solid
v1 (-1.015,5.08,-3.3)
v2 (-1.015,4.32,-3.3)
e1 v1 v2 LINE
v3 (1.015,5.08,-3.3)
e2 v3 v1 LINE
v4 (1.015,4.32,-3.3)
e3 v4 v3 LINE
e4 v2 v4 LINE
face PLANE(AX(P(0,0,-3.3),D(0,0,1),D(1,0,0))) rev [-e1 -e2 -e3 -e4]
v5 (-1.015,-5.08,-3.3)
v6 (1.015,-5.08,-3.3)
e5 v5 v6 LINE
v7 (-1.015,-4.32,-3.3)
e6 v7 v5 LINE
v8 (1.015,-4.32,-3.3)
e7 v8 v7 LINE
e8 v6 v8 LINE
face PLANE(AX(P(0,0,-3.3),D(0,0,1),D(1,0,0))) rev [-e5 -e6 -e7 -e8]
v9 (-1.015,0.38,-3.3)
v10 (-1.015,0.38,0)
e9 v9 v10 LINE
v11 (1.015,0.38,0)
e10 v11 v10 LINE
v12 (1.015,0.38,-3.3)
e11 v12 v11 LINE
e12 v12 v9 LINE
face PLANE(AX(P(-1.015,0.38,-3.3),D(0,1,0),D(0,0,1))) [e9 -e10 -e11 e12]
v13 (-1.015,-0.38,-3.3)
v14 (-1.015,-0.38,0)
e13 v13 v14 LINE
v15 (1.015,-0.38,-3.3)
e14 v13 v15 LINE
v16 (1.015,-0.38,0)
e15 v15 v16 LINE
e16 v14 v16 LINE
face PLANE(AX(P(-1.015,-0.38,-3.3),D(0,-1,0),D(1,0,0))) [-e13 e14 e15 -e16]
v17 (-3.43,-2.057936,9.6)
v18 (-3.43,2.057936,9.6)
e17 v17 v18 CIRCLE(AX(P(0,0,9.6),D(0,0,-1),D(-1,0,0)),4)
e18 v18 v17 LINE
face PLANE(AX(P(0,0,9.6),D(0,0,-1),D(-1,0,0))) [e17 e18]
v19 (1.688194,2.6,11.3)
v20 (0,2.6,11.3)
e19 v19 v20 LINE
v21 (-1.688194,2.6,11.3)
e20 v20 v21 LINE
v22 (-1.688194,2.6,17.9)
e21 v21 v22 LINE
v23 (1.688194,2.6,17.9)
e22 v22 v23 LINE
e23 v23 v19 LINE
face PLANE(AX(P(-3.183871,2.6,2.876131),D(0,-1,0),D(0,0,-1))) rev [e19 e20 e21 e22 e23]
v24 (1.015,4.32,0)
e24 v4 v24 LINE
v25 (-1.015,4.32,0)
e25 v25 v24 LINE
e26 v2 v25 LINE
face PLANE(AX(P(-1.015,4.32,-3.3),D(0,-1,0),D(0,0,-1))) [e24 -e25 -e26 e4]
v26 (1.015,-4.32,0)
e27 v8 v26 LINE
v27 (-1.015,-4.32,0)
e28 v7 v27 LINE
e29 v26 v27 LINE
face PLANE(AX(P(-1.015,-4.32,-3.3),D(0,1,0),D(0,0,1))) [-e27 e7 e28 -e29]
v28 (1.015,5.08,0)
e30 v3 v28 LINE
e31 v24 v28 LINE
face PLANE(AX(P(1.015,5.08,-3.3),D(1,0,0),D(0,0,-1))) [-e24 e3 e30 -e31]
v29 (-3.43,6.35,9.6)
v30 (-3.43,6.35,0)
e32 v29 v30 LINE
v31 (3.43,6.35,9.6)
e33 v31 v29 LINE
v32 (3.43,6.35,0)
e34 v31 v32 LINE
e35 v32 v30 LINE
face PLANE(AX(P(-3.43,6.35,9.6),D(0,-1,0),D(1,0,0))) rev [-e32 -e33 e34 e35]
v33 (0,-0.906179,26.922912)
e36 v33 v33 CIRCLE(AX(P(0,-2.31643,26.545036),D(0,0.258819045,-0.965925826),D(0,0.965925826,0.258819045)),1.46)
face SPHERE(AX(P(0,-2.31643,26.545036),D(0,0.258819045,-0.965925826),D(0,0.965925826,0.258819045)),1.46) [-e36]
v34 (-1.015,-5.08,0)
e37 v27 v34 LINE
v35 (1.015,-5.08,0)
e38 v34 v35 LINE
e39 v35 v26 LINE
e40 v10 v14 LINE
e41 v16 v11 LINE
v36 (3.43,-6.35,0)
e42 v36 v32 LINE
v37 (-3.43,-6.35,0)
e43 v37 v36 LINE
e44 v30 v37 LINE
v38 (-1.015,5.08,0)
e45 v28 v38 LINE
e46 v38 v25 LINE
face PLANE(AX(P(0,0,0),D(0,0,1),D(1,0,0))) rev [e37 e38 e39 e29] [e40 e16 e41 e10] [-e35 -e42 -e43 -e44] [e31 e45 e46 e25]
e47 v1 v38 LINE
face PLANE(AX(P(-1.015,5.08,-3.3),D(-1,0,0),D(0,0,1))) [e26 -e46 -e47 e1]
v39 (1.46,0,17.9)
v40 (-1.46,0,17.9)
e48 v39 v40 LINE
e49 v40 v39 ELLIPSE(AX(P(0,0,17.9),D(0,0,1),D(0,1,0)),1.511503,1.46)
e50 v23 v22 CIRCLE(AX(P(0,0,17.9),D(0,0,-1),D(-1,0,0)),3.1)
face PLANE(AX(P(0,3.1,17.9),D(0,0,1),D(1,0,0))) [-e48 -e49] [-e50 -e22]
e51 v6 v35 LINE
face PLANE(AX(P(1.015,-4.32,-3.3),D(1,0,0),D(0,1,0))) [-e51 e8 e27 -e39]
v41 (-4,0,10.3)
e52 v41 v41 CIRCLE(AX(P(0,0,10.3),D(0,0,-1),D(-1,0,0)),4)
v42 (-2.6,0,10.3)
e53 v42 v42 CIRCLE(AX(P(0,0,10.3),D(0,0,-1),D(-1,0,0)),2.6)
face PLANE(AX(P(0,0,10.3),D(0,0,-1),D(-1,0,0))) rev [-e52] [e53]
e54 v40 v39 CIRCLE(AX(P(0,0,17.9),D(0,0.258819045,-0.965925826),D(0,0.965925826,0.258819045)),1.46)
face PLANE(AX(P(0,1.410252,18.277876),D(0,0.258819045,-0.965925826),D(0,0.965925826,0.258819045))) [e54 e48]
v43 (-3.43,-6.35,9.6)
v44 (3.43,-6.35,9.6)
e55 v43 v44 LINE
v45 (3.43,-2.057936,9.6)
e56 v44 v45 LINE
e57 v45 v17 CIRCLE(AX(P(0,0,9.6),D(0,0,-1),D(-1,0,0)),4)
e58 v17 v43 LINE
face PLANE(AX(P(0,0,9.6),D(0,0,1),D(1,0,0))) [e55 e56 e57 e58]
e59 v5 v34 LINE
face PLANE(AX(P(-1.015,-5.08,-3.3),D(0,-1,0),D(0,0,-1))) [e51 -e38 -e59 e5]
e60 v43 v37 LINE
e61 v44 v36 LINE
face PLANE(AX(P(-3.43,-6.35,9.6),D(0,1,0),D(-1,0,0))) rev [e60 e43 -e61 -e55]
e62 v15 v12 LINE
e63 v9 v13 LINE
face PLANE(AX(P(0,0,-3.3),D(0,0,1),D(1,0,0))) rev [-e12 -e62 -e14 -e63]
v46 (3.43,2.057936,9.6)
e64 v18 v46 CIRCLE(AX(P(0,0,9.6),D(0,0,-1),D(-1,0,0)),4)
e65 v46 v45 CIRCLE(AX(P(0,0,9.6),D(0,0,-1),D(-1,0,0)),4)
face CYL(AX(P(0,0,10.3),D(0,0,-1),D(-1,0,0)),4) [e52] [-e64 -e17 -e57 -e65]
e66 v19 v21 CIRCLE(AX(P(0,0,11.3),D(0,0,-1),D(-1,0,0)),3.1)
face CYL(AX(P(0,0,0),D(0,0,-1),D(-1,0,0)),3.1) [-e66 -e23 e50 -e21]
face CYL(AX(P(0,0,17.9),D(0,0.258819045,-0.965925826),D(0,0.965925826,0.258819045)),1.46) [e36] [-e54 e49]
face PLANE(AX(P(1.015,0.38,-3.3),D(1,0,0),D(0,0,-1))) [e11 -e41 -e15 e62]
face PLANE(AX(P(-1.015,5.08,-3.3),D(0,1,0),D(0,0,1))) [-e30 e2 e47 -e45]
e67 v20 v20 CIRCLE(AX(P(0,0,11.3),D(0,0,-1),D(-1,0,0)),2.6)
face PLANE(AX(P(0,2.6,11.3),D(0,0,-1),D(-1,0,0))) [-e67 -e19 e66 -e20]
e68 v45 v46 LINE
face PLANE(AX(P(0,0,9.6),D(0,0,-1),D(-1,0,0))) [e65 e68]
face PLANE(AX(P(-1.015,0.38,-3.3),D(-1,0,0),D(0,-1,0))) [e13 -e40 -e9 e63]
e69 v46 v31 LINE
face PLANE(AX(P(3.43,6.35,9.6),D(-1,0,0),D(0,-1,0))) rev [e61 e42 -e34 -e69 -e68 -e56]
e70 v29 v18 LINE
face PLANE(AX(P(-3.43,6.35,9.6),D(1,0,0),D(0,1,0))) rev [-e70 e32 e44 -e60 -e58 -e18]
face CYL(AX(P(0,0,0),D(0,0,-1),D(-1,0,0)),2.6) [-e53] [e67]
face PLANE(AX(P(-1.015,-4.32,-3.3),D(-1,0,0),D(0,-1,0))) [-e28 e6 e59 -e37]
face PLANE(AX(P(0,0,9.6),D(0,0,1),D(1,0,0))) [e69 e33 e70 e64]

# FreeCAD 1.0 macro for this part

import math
import FreeCAD as App
import Part
import Sketcher
from FreeCAD import Vector
Q = App.Units.Quantity

doc = App.newDocument("Part")
body = doc.addObject("PartDesign::Body", "Body")

sketch1 = body.newObject("Sketcher::SketchObject", "Sketch")
sketch1.AttachmentSupport = (doc.getObject("XY_Plane"), [""])
sketch1.MapMode = "FlatFace"
sketch1.addGeometry([
    Part.LineSegment(Vector(-3, 6, 0), Vector(-3, -6, 0)),
    Part.LineSegment(Vector(-3, -6, 0), Vector(3, -6, 0)),
    Part.LineSegment(Vector(3, -6, 0), Vector(3, 6, 0)),
    Part.LineSegment(Vector(3, 6, 0), Vector(-3, 6, 0)),
], False)
sketch1.addConstraint([
    Sketcher.Constraint("Coincident", 0, 2, 1, 1),
    Sketcher.Constraint("Coincident", 1, 2, 2, 1),
    Sketcher.Constraint("Coincident", 2, 2, 3, 1),
    Sketcher.Constraint("Coincident", 3, 2, 0, 1),
    Sketcher.Constraint("Vertical", 0),
    Sketcher.Constraint("Horizontal", 1),
    Sketcher.Constraint("Vertical", 2),
    Sketcher.Constraint("Horizontal", 3),
    Sketcher.Constraint("Symmetric", 0, 2, 2, 2, -1, 1),
    Sketcher.Constraint("DistanceY", 0, 2, 0, 1, Q("12.7 mm")),
    Sketcher.Constraint("DistanceX", 1, 1, 1, 2, Q("6.86 mm")),
])
pad1 = body.newObject("PartDesign::Pad", "Pad")
pad1.Profile = sketch1
pad1.Length = 9.6

sketch2 = body.newObject("Sketcher::SketchObject", "Sketch001")
sketch2.AttachmentSupport = (doc.getObject("XY_Plane"), [""])
sketch2.MapMode = "FlatFace"
sketch2.AttachmentOffset = App.Placement(Vector(0, 0, 9.6), App.Rotation())
sketch2.addGeometry(Part.Circle(Vector(0, 0, 0), Vector(0, 0, 1), 4), False)
sketch2.addConstraint([
    Sketcher.Constraint("Coincident", 0, 3, -1, 1),
    Sketcher.Constraint("Diameter", 0, Q("8 mm")),
])
pad2 = body.newObject("PartDesign::Pad", "Pad001")
pad2.Profile = sketch2
pad2.Length = 0.7

sketch3 = body.newObject("Sketcher::SketchObject", "Sketch002")
sketch3.AttachmentSupport = (doc.getObject("YZ_Plane"), [""])
sketch3.MapMode = "FlatFace"
sketch3.addGeometry([
    Part.LineSegment(Vector(2.6, 10.3, 0), Vector(2.6, 11.3, 0)),
    Part.LineSegment(Vector(2.6, 11.3, 0), Vector(3.1, 11.3, 0)),
    Part.LineSegment(Vector(3.1, 11.3, 0), Vector(3.1, 17.9, 0)),
    Part.LineSegment(Vector(3.1, 17.9, 0), Vector(0, 17.9, 0)),
    Part.LineSegment(Vector(0, 17.9, 0), Vector(0, 10.3, 0)),
    Part.LineSegment(Vector(0, 10.3, 0), Vector(2.6, 10.3, 0)),
], False)
sketch3.addConstraint([
    Sketcher.Constraint("Coincident", 0, 2, 1, 1),
    Sketcher.Constraint("Coincident", 1, 2, 2, 1),
    Sketcher.Constraint("Coincident", 2, 2, 3, 1),
    Sketcher.Constraint("Coincident", 3, 2, 4, 1),
    Sketcher.Constraint("Coincident", 4, 2, 5, 1),
    Sketcher.Constraint("Coincident", 5, 2, 0, 1),
    Sketcher.Constraint("Vertical", 0),
    Sketcher.Constraint("Horizontal", 1),
    Sketcher.Constraint("Vertical", 2),
    Sketcher.Constraint("Horizontal", 3),
    Sketcher.Constraint("Vertical", 4),
    Sketcher.Constraint("Horizontal", 5),
    Sketcher.Constraint("PointOnObject", 3, 2, -2),
    Sketcher.Constraint("DistanceY", 0, 1, 0, 2, Q("1 mm")),
    Sketcher.Constraint("DistanceX", 1, 1, 1, 2, Q("0.5 mm")),
    Sketcher.Constraint("DistanceX", 3, 2, 3, 1, Q("3.1 mm")),
    Sketcher.Constraint("DistanceY", 2, 1, 2, 2, Q("6.6 mm")),
    Sketcher.Constraint("DistanceY", -1, 1, 0, 2, Q("11.3 mm")),
])
revolution = body.newObject("PartDesign::Revolution", "Revolution")
revolution.Profile = sketch3
revolution.ReferenceAxis = (sketch3, ["V_Axis"])
revolution.Angle = 360

sketch4 = body.newObject("Sketcher::SketchObject", "Sketch003")
sketch4.AttachmentSupport = (doc.getObject("YZ_Plane"), [""])
sketch4.MapMode = "FlatFace"
sketch4.addGeometry([
    Part.LineSegment(Vector(1.4, 18.3, 0), Vector(-0.9, 26.9, 0)),
    Part.ArcOfCircle(Part.Circle(Vector(-2.3, 26.5, 0), Vector(0, 0, 1), 1.5), math.radians(15), math.radians(105)),
    Part.LineSegment(Vector(-2.7, 28, 0), Vector(0, 17.9, 0)),
    Part.LineSegment(Vector(0, 17.9, 0), Vector(1.4, 18.3, 0)),
], False)
sketch4.addGeometry(Part.LineSegment(Vector(0, 17.9, 0), Vector(-2.7, 28, 0)), True)
sketch4.addConstraint([
    Sketcher.Constraint("Tangent", 0, 2, 1, 1),
    Sketcher.Constraint("Coincident", 1, 2, 2, 1),
    Sketcher.Constraint("Coincident", 2, 2, 3, 1),
    Sketcher.Constraint("Coincident", 3, 2, 0, 1),
    Sketcher.Constraint("Coincident", 4, 1, 2, 2),
    Sketcher.Constraint("Coincident", 4, 2, 1, 2),
    Sketcher.Constraint("PointOnObject", 2, 2, -2),
    Sketcher.Constraint("Parallel", 0, 2),
    Sketcher.Constraint("Perpendicular", 2, 3),
    Sketcher.Constraint("Angle", 0, Q("105 deg")),
    Sketcher.Constraint("Radius", 1, Q("1.46 mm")),
    Sketcher.Constraint("DistanceY", -1, 1, 2, 2, Q("17.9 mm")),
    Sketcher.Constraint("Distance", 0, Q("8.95 mm")),
    Sketcher.Constraint("Distance", 3, Q("1.46 mm")),
])
revolution2 = body.newObject("PartDesign::Revolution", "Revolution001")
revolution2.Profile = sketch4
revolution2.ReferenceAxis = (sketch4, ["Axis0"])
revolution2.Angle = 360

sketch5 = body.newObject("Sketcher::SketchObject", "Sketch004")
sketch5.AttachmentSupport = (doc.getObject("XY_Plane"), [""])
sketch5.MapMode = "FlatFace"
sketch5.addGeometry([
    Part.LineSegment(Vector(-1, 0.4, 0), Vector(-1, -0.4, 0)),
    Part.LineSegment(Vector(-1, -0.4, 0), Vector(1, -0.4, 0)),
    Part.LineSegment(Vector(1, -0.4, 0), Vector(1, 0.4, 0)),
    Part.LineSegment(Vector(1, 0.4, 0), Vector(-1, 0.4, 0)),
    Part.LineSegment(Vector(-1, 5.1, 0), Vector(-1, 4.3, 0)),
    Part.LineSegment(Vector(-1, 4.3, 0), Vector(1, 4.3, 0)),
    Part.LineSegment(Vector(1, 4.3, 0), Vector(1, 5.1, 0)),
    Part.LineSegment(Vector(1, 5.1, 0), Vector(-1, 5.1, 0)),
    Part.LineSegment(Vector(-1, -4.3, 0), Vector(-1, -5.1, 0)),
    Part.LineSegment(Vector(-1, -5.1, 0), Vector(1, -5.1, 0)),
    Part.LineSegment(Vector(1, -5.1, 0), Vector(1, -4.3, 0)),
    Part.LineSegment(Vector(1, -4.3, 0), Vector(-1, -4.3, 0)),
], False)
sketch5.addConstraint([
    Sketcher.Constraint("Coincident", 0, 2, 1, 1),
    Sketcher.Constraint("Coincident", 1, 2, 2, 1),
    Sketcher.Constraint("Coincident", 2, 2, 3, 1),
    Sketcher.Constraint("Coincident", 3, 2, 0, 1),
    Sketcher.Constraint("Coincident", 4, 2, 5, 1),
    Sketcher.Constraint("Coincident", 5, 2, 6, 1),
    Sketcher.Constraint("Coincident", 6, 2, 7, 1),
    Sketcher.Constraint("Coincident", 7, 2, 4, 1),
    Sketcher.Constraint("Coincident", 8, 2, 9, 1),
    Sketcher.Constraint("Coincident", 9, 2, 10, 1),
    Sketcher.Constraint("Coincident", 10, 2, 11, 1),
    Sketcher.Constraint("Coincident", 11, 2, 8, 1),
    Sketcher.Constraint("Vertical", 0),
    Sketcher.Constraint("Horizontal", 1),
    Sketcher.Constraint("Vertical", 2),
    Sketcher.Constraint("Horizontal", 3),
    Sketcher.Constraint("Vertical", 4),
    Sketcher.Constraint("Horizontal", 5),
    Sketcher.Constraint("Vertical", 6),
    Sketcher.Constraint("Horizontal", 7),
    Sketcher.Constraint("Vertical", 8),
    Sketcher.Constraint("Horizontal", 9),
    Sketcher.Constraint("Vertical", 10),
    Sketcher.Constraint("Horizontal", 11),
    Sketcher.Constraint("Symmetric", 0, 2, 2, 2, -1, 1),
    Sketcher.Constraint("Symmetric", 6, 2, 8, 2, -1, 1),
    Sketcher.Constraint("Symmetric", 4, 2, 10, 2, -1, 1),
    Sketcher.Constraint("Vertical", 3, 2, 4, 2),
    Sketcher.Constraint("Vertical", 2, 2, 5, 2),
    Sketcher.Constraint("Equal", 2, 4),
    Sketcher.Constraint("DistanceX", 1, 1, 1, 2, Q("2.03 mm")),
    Sketcher.Constraint("DistanceY", 0, 2, 0, 1, Q("0.76 mm")),
    Sketcher.Constraint("DistanceY", 0, 2, 4, 2, Q("4.7 mm")),
])
pad3 = body.newObject("PartDesign::Pad", "Pad002")
pad3.Profile = sketch5
pad3.Length = 3.3
pad3.Reversed = True

sketch6 = body.newObject("Sketcher::SketchObject", "Sketch005")
sketch6.AttachmentSupport = (doc.getObject("XY_Plane"), [""])
sketch6.MapMode = "FlatFace"
sketch6.AttachmentOffset = App.Placement(Vector(0, 0, 17.9), App.Rotation())
sketch6.addGeometry([
    Part.LineSegment(Vector(-3.2, 5.5, 0), Vector(-3.2, 2.6, 0)),
    Part.LineSegment(Vector(-3.2, 2.6, 0), Vector(3.6, 2.6, 0)),
    Part.LineSegment(Vector(3.6, 2.6, 0), Vector(3.6, 5.5, 0)),
    Part.LineSegment(Vector(3.6, 5.5, 0), Vector(-3.2, 5.5, 0)),
], False)
sketch6.addConstraint([
    Sketcher.Constraint("Coincident", 0, 2, 1, 1),
    Sketcher.Constraint("Coincident", 1, 2, 2, 1),
    Sketcher.Constraint("Coincident", 2, 2, 3, 1),
    Sketcher.Constraint("Coincident", 3, 2, 0, 1),
    Sketcher.Constraint("Vertical", 0),
    Sketcher.Constraint("Horizontal", 1),
    Sketcher.Constraint("Vertical", 2),
    Sketcher.Constraint("Horizontal", 3),
    Sketcher.Constraint("DistanceY", -1, 1, 0, 2, Q("2.6 mm")),
    Sketcher.Constraint("DistanceY", 0, 2, 0, 1, Q("2.902221 mm")),
    Sketcher.Constraint("DistanceX", 1, 1, 1, 2, Q("6.833077 mm")),
    Sketcher.Constraint("DistanceX", 0, 2, -1, 1, Q("3.183871 mm")),
])
pocket1 = body.newObject("PartDesign::Pocket", "Pocket")
pocket1.Profile = sketch6
pocket1.Length = 7.6

doc.recompute()
